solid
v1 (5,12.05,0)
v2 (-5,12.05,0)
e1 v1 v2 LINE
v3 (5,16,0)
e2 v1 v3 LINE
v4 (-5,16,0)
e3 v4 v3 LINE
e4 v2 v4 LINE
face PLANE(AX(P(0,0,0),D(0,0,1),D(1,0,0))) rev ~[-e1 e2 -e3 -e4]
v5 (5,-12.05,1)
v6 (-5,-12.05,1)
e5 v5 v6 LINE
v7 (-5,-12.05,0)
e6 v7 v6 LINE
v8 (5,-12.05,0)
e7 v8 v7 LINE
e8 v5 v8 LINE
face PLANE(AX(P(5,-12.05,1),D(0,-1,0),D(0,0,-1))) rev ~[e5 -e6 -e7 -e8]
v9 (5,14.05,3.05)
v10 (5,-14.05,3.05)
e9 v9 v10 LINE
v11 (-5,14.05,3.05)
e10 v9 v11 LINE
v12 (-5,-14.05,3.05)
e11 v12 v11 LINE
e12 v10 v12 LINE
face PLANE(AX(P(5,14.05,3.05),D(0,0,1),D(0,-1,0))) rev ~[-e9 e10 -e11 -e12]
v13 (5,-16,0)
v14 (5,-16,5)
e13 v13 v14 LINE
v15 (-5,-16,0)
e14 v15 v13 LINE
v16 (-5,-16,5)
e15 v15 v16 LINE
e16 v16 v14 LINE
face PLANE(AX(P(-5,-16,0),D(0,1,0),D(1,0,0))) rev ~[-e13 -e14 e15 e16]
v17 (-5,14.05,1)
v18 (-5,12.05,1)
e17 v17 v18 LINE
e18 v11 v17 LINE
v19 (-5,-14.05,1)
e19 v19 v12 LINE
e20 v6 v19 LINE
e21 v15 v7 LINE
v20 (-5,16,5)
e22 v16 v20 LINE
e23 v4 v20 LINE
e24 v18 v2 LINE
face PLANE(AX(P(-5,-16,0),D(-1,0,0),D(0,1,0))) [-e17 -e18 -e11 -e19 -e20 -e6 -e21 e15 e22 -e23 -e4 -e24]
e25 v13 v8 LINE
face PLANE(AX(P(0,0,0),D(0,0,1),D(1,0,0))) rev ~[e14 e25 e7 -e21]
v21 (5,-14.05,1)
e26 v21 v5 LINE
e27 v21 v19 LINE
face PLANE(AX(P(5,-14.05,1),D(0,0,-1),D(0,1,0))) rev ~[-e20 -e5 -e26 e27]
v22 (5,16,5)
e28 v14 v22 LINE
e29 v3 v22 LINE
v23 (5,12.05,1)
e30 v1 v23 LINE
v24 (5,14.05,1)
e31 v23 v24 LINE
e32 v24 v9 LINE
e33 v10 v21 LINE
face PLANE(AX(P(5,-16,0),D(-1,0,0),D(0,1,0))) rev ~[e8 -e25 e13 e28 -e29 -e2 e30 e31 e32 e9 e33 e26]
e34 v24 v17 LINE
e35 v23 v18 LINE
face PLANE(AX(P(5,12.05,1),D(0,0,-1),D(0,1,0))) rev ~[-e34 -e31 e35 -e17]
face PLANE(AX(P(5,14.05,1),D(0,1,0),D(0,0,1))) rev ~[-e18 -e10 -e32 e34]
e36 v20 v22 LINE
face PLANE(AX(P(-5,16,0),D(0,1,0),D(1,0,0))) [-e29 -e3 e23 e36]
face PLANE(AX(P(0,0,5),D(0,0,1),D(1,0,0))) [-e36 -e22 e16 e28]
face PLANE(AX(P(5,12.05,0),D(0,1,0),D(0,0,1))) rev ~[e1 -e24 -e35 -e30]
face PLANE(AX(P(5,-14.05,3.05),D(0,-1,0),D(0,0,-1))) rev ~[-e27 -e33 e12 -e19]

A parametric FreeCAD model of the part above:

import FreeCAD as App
import Part
import Sketcher

V = App.Vector
Q = App.Units.Quantity


def add_polygon(sketch, points):
    """Adds a closed chain of lines whose ends are joined by coincident constraints."""
    first, n = sketch.GeometryCount, len(points)
    for a, b in zip(points, points[1:] + points[:1]):
        sketch.addGeometry(Part.LineSegment(App.Vector(*a, 0), App.Vector(*b, 0)), False)
    for i in range(n):
        sketch.addConstraint(Sketcher.Constraint("Coincident", first + i, 2, first + (i + 1) % n, 1))

doc = App.newDocument("Part")
body = doc.addObject("PartDesign::Body", "Body")

# Sketch on XY plane
sketch1 = body.newObject("Sketcher::SketchObject", "Sketch")
sketch1.AttachmentSupport = (doc.getObject("XY_Plane"), [""])
sketch1.MapMode = "FlatFace"
add_polygon(sketch1, [(-5, 16), (-5, -16), (5, -16), (5, 16)])  # lines 0-3
sketch1.addConstraint([
    Sketcher.Constraint("Vertical", 0),
    Sketcher.Constraint("Horizontal", 1),
    Sketcher.Constraint("Vertical", 2),
    Sketcher.Constraint("Horizontal", 3),
    Sketcher.Constraint("Symmetric", 0, 2, 2, 2, -1, 1),
    Sketcher.Constraint("DistanceX", 1, 1, 1, 2, Q("10 mm")),
    Sketcher.Constraint("DistanceY", 0, 2, 0, 1, Q("32 mm")),
])
pad1 = body.newObject("PartDesign::Pad", "Pad")
pad1.Profile = sketch1
pad1.Length = 5

# Sketch on YZ plane
sketch2 = body.newObject("Sketcher::SketchObject", "Sketch001")
sketch2.AttachmentSupport = (doc.getObject("YZ_Plane"), [""])
sketch2.MapMode = "FlatFace"
sketch2.AttachmentOffset = App.Placement(V(0, 0, 5), App.Rotation())
add_polygon(sketch2, [(-12.1, 1), (-12.1, 0), (12.1, 0), (12.1, 1), (14.1, 1), (14.1, 3), (-14.1, 3), (-14.1, 1)])  # lines 0-7
sketch2.addConstraint([
    Sketcher.Constraint("Vertical", 0),
    Sketcher.Constraint("Horizontal", 1),
    Sketcher.Constraint("Vertical", 2),
    Sketcher.Constraint("Horizontal", 3),
    Sketcher.Constraint("Vertical", 4),
    Sketcher.Constraint("Horizontal", 5),
    Sketcher.Constraint("Vertical", 6),
    Sketcher.Constraint("Horizontal", 7),
    Sketcher.Constraint("Symmetric", 0, 2, 1, 2, -1, 1),
    Sketcher.Constraint("Symmetric", 3, 2, 6, 2, -2),
    Sketcher.Constraint("DistanceX", 3, 1, 3, 2, Q("2 mm")),
    Sketcher.Constraint("DistanceY", 0, 2, 0, 1, Q("1 mm")),
    Sketcher.Constraint("DistanceX", 1, 1, 1, 2, Q("24.1 mm")),
    Sketcher.Constraint("DistanceY", 4, 1, 4, 2, Q("2.05 mm")),
])
pocket1 = body.newObject("PartDesign::Pocket", "Pocket")
pocket1.Profile = sketch2
pocket1.Type = "ThroughAll"

doc.recompute()
